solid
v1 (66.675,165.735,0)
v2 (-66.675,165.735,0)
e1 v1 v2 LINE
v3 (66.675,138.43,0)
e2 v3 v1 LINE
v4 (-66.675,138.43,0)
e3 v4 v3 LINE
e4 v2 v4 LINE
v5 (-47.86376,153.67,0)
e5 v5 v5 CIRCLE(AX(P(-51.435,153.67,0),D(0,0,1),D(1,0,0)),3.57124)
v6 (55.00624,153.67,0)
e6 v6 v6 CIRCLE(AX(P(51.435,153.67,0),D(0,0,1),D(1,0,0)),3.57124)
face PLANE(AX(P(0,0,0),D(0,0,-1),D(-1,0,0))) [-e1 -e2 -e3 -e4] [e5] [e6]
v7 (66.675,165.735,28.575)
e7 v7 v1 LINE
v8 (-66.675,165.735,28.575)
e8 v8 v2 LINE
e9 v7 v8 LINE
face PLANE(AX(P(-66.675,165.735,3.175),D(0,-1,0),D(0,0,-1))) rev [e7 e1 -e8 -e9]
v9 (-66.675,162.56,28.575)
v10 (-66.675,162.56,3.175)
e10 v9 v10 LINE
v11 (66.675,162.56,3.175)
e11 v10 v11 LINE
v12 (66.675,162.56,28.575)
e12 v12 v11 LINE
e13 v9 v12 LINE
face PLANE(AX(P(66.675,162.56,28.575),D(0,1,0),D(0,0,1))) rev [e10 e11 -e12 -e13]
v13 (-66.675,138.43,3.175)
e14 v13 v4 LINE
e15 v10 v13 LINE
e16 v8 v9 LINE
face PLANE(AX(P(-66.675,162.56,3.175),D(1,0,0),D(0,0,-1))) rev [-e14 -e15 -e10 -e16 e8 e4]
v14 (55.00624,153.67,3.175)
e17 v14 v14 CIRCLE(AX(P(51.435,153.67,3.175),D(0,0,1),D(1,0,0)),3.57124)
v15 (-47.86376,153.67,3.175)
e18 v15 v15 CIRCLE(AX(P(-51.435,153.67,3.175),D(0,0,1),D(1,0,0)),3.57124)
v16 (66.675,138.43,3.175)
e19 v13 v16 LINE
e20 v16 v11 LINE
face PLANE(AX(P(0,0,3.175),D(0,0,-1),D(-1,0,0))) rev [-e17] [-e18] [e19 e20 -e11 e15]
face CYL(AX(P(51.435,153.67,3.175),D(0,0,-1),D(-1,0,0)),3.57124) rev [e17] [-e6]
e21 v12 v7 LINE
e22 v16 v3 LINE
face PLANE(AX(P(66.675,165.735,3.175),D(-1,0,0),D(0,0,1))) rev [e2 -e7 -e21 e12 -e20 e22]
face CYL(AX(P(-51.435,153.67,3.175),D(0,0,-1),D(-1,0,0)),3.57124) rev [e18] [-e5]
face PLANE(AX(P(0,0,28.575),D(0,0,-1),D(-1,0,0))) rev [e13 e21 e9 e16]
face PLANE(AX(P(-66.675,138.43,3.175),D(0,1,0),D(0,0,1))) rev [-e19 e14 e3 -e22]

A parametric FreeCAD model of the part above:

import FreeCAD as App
import Part
import Sketcher
from FreeCAD import Vector
Q = App.Units.Quantity


def add_polygon(sketch, points):
    """Adds a closed chain of lines whose ends are joined by coincident constraints."""
    first, n = sketch.GeometryCount, len(points)
    for a, b in zip(points, points[1:] + points[:1]):
        sketch.addGeometry(Part.LineSegment(App.Vector(*a, 0), App.Vector(*b, 0)), False)
    for i in range(n):
        sketch.addConstraint(Sketcher.Constraint("Coincident", first + i, 2, first + (i + 1) % n, 1))

doc = App.newDocument("Part")
body = doc.addObject("PartDesign::Body", "Body")

# Sketch on XY plane
sketch1 = body.newObject("Sketcher::SketchObject", "Sketch")
sketch1.AttachmentSupport = (doc.getObject("XY_Plane"), [""])
sketch1.MapMode = "FlatFace"
add_polygon(sketch1, [(-66.7, 138.4), (66.7, 138.4), (66.7, 165.7), (-66.7, 165.7)])  # lines 0-3
sketch1.addGeometry(Part.Circle(Vector(-51.4, 153.7, 0), Vector(0, 0, 1), 3.6), False)  # 4
sketch1.addGeometry(Part.Circle(Vector(51.4, 153.7, 0), Vector(0, 0, 1), 3.6), False)  # 5
sketch1.addConstraint(Sketcher.Constraint("Horizontal", 0))
sketch1.addConstraint(Sketcher.Constraint("Vertical", 1))
sketch1.addConstraint(Sketcher.Constraint("Horizontal", 2))
sketch1.addConstraint(Sketcher.Constraint("Vertical", 3))
sketch1.addConstraint(Sketcher.Constraint("Equal", 4, 5))
sketch1.addConstraint(Sketcher.Constraint("Symmetric", 4, 3, 5, 3, -2))
sketch1.addConstraint(Sketcher.Constraint("Diameter", 4, Q("0.2812 in")))
sketch1.addConstraint(Sketcher.Constraint("DistanceX", 0, 1, 0, 2, Q("5.25 in")))
sketch1.addConstraint(Sketcher.Constraint("DistanceX", 5, 3, 0, 2, Q("0.6 in")))
sketch1.addConstraint(Sketcher.Constraint("DistanceY", 0, 2, 5, 3, Q("0.6 in")))
sketch1.addConstraint(Sketcher.Constraint("DistanceX", 2, 2, 4, 3, Q("0.6 in")))
sketch1.addConstraint(Sketcher.Constraint("DistanceY", 1, 1, 1, 2, Q("1.075 in")))
sketch1.addConstraint(Sketcher.Constraint("DistanceY", -1, 1, 4, 3, Q("6.05 in")))
pad1 = body.newObject("PartDesign::Pad", "Pad")
pad1.Profile = sketch1
pad1.Length = Q("0.125 in")

# Sketch on XY plane
sketch2 = body.newObject("Sketcher::SketchObject", "Sketch001")
sketch2.AttachmentSupport = (doc.getObject("XY_Plane"), [""])
sketch2.MapMode = "FlatFace"
sketch2.AttachmentOffset = App.Placement(Vector(0, 0, 0.125 * 25.4), App.Rotation())
add_polygon(sketch2, [(-66.7, 165.7), (-66.7, 162.6), (66.7, 162.6), (66.7, 165.7)])  # lines 0-3
sketch2.addConstraint(Sketcher.Constraint("Vertical", 0))
sketch2.addConstraint(Sketcher.Constraint("Horizontal", 1))
sketch2.addConstraint(Sketcher.Constraint("Vertical", 2))
sketch2.addConstraint(Sketcher.Constraint("Horizontal", 3))
sketch2.addConstraint(Sketcher.Constraint("DistanceX", 1, 1, 1, 2, Q("5.25 in")))
sketch2.addConstraint(Sketcher.Constraint("DistanceY", -1, 1, 0, 2, Q("6.4 in")))
sketch2.addConstraint(Sketcher.Constraint("DistanceY", 0, 2, 0, 1, Q("0.125 in")))
sketch2.addConstraint(Sketcher.Constraint("DistanceX", 0, 2, -1, 1, Q("2.625 in")))
pad2 = body.newObject("PartDesign::Pad", "Pad001")
pad2.Profile = sketch2
pad2.Length = Q("1 in")

doc.recompute()
